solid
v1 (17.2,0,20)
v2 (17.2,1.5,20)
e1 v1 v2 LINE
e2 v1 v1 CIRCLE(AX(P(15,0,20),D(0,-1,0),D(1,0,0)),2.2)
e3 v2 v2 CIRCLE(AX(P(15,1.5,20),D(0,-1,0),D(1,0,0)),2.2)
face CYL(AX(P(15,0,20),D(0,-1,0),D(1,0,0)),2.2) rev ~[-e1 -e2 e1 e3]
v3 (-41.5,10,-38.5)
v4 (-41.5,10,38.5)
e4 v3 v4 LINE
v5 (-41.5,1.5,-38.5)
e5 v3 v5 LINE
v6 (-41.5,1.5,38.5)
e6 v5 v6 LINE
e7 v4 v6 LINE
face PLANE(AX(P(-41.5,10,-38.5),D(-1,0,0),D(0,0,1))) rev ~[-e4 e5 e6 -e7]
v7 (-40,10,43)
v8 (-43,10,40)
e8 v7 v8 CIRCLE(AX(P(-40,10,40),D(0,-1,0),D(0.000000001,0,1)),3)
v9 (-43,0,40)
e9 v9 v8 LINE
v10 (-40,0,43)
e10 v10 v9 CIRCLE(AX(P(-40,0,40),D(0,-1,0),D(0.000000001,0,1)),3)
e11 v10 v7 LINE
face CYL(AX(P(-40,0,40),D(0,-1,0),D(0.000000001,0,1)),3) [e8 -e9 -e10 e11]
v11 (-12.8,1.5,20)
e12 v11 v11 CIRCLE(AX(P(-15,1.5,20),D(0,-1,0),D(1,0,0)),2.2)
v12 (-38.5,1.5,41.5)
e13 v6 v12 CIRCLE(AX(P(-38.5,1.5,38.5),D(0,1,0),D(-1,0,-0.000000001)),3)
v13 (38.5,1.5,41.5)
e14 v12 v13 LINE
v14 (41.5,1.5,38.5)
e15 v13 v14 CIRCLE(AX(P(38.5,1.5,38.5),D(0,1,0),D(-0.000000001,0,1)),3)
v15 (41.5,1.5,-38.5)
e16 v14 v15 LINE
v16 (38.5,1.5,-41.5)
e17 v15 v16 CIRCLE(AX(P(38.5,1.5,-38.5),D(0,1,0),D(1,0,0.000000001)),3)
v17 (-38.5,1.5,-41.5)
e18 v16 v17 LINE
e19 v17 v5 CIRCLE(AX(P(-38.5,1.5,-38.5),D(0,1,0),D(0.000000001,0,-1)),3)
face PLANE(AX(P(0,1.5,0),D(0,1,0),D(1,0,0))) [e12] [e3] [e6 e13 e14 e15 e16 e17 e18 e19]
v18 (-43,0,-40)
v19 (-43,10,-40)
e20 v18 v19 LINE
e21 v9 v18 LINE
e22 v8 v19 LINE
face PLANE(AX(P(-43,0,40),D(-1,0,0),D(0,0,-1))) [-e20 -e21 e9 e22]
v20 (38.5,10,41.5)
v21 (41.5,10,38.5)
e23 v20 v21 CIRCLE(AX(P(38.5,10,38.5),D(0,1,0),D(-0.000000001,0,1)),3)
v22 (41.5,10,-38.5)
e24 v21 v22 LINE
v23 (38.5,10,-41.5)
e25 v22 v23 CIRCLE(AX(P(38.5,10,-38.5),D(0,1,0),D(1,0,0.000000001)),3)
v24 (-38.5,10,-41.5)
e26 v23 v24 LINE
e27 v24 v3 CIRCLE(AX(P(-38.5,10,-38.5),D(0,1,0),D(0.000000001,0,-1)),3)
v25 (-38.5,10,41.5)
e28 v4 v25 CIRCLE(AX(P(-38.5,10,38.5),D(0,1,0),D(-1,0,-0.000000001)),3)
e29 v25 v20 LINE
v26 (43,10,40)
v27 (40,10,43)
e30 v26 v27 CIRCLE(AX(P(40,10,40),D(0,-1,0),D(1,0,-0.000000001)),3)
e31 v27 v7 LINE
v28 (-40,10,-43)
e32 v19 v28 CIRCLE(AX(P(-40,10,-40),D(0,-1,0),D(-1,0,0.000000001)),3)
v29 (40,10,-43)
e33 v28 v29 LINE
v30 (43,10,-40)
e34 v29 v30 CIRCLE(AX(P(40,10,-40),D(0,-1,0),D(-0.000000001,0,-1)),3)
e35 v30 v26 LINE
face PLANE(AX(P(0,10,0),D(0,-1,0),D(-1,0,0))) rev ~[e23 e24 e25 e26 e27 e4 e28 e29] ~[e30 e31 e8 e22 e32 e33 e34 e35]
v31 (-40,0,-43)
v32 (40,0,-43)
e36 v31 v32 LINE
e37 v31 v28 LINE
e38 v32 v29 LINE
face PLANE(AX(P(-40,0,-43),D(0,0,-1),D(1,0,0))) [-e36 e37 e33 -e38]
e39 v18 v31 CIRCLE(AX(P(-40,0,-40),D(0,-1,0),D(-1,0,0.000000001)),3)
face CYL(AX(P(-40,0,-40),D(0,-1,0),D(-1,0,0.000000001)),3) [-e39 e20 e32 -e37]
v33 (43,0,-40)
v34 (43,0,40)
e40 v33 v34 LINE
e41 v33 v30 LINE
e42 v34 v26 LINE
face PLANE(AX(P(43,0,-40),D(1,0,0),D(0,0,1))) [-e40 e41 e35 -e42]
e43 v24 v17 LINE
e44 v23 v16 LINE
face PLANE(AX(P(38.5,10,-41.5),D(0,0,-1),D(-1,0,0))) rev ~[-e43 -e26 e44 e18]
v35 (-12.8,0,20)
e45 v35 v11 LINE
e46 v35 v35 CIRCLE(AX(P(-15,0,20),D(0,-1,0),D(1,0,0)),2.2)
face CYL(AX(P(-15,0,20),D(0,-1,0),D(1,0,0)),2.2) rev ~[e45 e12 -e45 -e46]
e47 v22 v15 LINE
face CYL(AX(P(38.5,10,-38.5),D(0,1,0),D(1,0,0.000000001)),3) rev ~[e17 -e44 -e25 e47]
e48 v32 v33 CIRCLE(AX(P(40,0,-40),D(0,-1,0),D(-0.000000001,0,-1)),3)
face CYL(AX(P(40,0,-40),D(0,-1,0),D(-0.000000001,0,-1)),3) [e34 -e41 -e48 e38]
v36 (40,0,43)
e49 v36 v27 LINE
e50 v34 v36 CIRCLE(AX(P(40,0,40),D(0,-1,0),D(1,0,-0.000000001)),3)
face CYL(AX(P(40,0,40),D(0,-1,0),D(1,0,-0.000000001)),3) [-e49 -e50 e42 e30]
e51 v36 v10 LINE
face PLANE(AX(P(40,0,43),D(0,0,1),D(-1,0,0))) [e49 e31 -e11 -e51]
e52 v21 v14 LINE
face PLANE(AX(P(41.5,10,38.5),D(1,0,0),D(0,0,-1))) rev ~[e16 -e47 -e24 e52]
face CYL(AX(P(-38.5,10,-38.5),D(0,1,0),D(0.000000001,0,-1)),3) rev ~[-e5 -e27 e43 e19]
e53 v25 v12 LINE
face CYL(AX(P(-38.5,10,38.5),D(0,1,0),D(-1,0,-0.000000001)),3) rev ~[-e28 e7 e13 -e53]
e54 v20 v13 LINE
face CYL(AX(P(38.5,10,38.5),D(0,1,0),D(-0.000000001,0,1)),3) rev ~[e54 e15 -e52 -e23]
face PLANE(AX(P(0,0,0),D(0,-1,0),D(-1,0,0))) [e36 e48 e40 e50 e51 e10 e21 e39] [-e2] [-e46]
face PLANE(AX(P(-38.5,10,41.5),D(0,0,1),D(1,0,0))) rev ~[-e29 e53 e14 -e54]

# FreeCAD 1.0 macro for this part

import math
import FreeCAD as App
import Part
import Sketcher
from FreeCAD import Vector
Q = App.Units.Quantity

doc = App.newDocument("Part")
body = doc.addObject("PartDesign::Body", "Body")

sketch1 = body.newObject("Sketcher::SketchObject", "Sketch")
sketch1.AttachmentSupport = (doc.getObject("XZ_Plane"), [""])
sketch1.MapMode = "FlatFace"
sketch1.addGeometry(Part.LineSegment(Vector(40, -43, 0), Vector(-40, -43, 0)), False)
sketch1.addGeometry(Part.ArcOfCircle(Part.Circle(Vector(-40, -40, 0), Vector(0, 0, 1), 3), math.radians(180), math.radians(270)), False)
sketch1.addGeometry(Part.LineSegment(Vector(-43, -40, 0), Vector(-43, 40, 0)), False)
sketch1.addGeometry(Part.ArcOfCircle(Part.Circle(Vector(-40, 40, 0), Vector(0, 0, 1), 3), math.radians(90), math.radians(180)), False)
sketch1.addGeometry(Part.LineSegment(Vector(-40, 43, 0), Vector(40, 43, 0)), False)
sketch1.addGeometry(Part.ArcOfCircle(Part.Circle(Vector(40, 40, 0), Vector(0, 0, 1), 3), math.radians(0), math.radians(90)), False)
sketch1.addGeometry(Part.LineSegment(Vector(43, 40, 0), Vector(43, -40, 0)), False)
sketch1.addGeometry(Part.ArcOfCircle(Part.Circle(Vector(40, -40, 0), Vector(0, 0, 1), 3), math.radians(-90), math.radians(0)), False)
sketch1.addConstraint(Sketcher.Constraint("Tangent", 0, 2, 1, 2))
sketch1.addConstraint(Sketcher.Constraint("Tangent", 1, 1, 2, 1))
sketch1.addConstraint(Sketcher.Constraint("Tangent", 2, 2, 3, 2))
sketch1.addConstraint(Sketcher.Constraint("Tangent", 3, 1, 4, 1))
sketch1.addConstraint(Sketcher.Constraint("Tangent", 4, 2, 5, 2))
sketch1.addConstraint(Sketcher.Constraint("Tangent", 5, 1, 6, 1))
sketch1.addConstraint(Sketcher.Constraint("Tangent", 6, 2, 7, 2))
sketch1.addConstraint(Sketcher.Constraint("Tangent", 7, 1, 0, 1))
sketch1.addConstraint(Sketcher.Constraint("Horizontal", 0))
sketch1.addConstraint(Sketcher.Constraint("Vertical", 2))
sketch1.addConstraint(Sketcher.Constraint("Horizontal", 4))
sketch1.addConstraint(Sketcher.Constraint("Vertical", 6))
sketch1.addConstraint(Sketcher.Constraint("Equal", 1, 3))
sketch1.addConstraint(Sketcher.Constraint("Equal", 3, 5))
sketch1.addConstraint(Sketcher.Constraint("Equal", 5, 7))
sketch1.addConstraint(Sketcher.Constraint("Symmetric", 1, 3, 5, 3, -1, 1))
sketch1.addConstraint(Sketcher.Constraint("Equal", 4, 2))
sketch1.addConstraint(Sketcher.Constraint("Radius", 1, Q("3 mm")))
sketch1.addConstraint(Sketcher.Constraint("DistanceX", 0, 2, 0, 1, Q("80 mm")))
pad1 = body.newObject("PartDesign::Pad", "Pad")
pad1.Profile = sketch1
pad1.Length = 10
pad1.Reversed = True

sketch2 = body.newObject("Sketcher::SketchObject", "Sketch001")
sketch2.AttachmentSupport = (doc.getObject("XZ_Plane"), [""])
sketch2.MapMode = "FlatFace"
sketch2.AttachmentOffset = App.Placement(Vector(0, 0, -10), App.Rotation())
sketch2.addGeometry(Part.LineSegment(Vector(-38.5, 41.5, 0), Vector(38.5, 41.5, 0)), False)
sketch2.addGeometry(Part.ArcOfCircle(Part.Circle(Vector(38.5, 38.5, 0), Vector(0, 0, 1), 3), math.radians(0), math.radians(90)), False)
sketch2.addGeometry(Part.LineSegment(Vector(41.5, 38.5, 0), Vector(41.5, -38.5, 0)), False)
sketch2.addGeometry(Part.ArcOfCircle(Part.Circle(Vector(38.5, -38.5, 0), Vector(0, 0, 1), 3), math.radians(-90), math.radians(0)), False)
sketch2.addGeometry(Part.LineSegment(Vector(38.5, -41.5, 0), Vector(-38.5, -41.5, 0)), False)
sketch2.addGeometry(Part.ArcOfCircle(Part.Circle(Vector(-38.5, -38.5, 0), Vector(0, 0, 1), 3), math.radians(180), math.radians(270)), False)
sketch2.addGeometry(Part.LineSegment(Vector(-41.5, -38.5, 0), Vector(-41.5, 38.5, 0)), False)
sketch2.addGeometry(Part.ArcOfCircle(Part.Circle(Vector(-38.5, 38.5, 0), Vector(0, 0, 1), 3), math.radians(90), math.radians(180)), False)
sketch2.addConstraint(Sketcher.Constraint("Tangent", 0, 2, 1, 2))
sketch2.addConstraint(Sketcher.Constraint("Tangent", 1, 1, 2, 1))
sketch2.addConstraint(Sketcher.Constraint("Tangent", 2, 2, 3, 2))
sketch2.addConstraint(Sketcher.Constraint("Tangent", 3, 1, 4, 1))
sketch2.addConstraint(Sketcher.Constraint("Tangent", 4, 2, 5, 2))
sketch2.addConstraint(Sketcher.Constraint("Tangent", 5, 1, 6, 1))
sketch2.addConstraint(Sketcher.Constraint("Tangent", 6, 2, 7, 2))
sketch2.addConstraint(Sketcher.Constraint("Tangent", 7, 1, 0, 1))
sketch2.addConstraint(Sketcher.Constraint("Horizontal", 0))
sketch2.addConstraint(Sketcher.Constraint("Vertical", 2))
sketch2.addConstraint(Sketcher.Constraint("Horizontal", 4))
sketch2.addConstraint(Sketcher.Constraint("Vertical", 6))
sketch2.addConstraint(Sketcher.Constraint("Equal", 1, 3))
sketch2.addConstraint(Sketcher.Constraint("Equal", 3, 5))
sketch2.addConstraint(Sketcher.Constraint("Equal", 5, 7))
sketch2.addConstraint(Sketcher.Constraint("Symmetric", 1, 3, 5, 3, -1, 1))
sketch2.addConstraint(Sketcher.Constraint("Equal", 4, 2))
sketch2.addConstraint(Sketcher.Constraint("Radius", 1, Q("3 mm")))
sketch2.addConstraint(Sketcher.Constraint("DistanceX", 0, 1, 0, 2, Q("77 mm")))
pocket1 = body.newObject("PartDesign::Pocket", "Pocket")
pocket1.Profile = sketch2
pocket1.Length = 8.5
pocket1.Reversed = True

sketch3 = body.newObject("Sketcher::SketchObject", "Sketch002")
sketch3.AttachmentSupport = (doc.getObject("XZ_Plane"), [""])
sketch3.MapMode = "FlatFace"
sketch3.addGeometry(Part.Circle(Vector(-15, 20, 0), Vector(0, 0, 1), 2.2), False)
sketch3.addGeometry(Part.Circle(Vector(15, 20, 0), Vector(0, 0, 1), 2.2), False)
sketch3.addConstraint(Sketcher.Constraint("Equal", 0, 1))
sketch3.addConstraint(Sketcher.Constraint("Symmetric", 0, 3, 1, 3, -2))
sketch3.addConstraint(Sketcher.Constraint("Diameter", 0, Q("4.4 mm")))
sketch3.addConstraint(Sketcher.Constraint("DistanceX", 0, 3, -1, 1, Q("15 mm")))
sketch3.addConstraint(Sketcher.Constraint("DistanceY", -1, 1, 0, 3, Q("20 mm")))
pocket2 = body.newObject("PartDesign::Pocket", "Pocket001")
pocket2.Profile = sketch3
pocket2.Type = "ThroughAll"

doc.recompute()
